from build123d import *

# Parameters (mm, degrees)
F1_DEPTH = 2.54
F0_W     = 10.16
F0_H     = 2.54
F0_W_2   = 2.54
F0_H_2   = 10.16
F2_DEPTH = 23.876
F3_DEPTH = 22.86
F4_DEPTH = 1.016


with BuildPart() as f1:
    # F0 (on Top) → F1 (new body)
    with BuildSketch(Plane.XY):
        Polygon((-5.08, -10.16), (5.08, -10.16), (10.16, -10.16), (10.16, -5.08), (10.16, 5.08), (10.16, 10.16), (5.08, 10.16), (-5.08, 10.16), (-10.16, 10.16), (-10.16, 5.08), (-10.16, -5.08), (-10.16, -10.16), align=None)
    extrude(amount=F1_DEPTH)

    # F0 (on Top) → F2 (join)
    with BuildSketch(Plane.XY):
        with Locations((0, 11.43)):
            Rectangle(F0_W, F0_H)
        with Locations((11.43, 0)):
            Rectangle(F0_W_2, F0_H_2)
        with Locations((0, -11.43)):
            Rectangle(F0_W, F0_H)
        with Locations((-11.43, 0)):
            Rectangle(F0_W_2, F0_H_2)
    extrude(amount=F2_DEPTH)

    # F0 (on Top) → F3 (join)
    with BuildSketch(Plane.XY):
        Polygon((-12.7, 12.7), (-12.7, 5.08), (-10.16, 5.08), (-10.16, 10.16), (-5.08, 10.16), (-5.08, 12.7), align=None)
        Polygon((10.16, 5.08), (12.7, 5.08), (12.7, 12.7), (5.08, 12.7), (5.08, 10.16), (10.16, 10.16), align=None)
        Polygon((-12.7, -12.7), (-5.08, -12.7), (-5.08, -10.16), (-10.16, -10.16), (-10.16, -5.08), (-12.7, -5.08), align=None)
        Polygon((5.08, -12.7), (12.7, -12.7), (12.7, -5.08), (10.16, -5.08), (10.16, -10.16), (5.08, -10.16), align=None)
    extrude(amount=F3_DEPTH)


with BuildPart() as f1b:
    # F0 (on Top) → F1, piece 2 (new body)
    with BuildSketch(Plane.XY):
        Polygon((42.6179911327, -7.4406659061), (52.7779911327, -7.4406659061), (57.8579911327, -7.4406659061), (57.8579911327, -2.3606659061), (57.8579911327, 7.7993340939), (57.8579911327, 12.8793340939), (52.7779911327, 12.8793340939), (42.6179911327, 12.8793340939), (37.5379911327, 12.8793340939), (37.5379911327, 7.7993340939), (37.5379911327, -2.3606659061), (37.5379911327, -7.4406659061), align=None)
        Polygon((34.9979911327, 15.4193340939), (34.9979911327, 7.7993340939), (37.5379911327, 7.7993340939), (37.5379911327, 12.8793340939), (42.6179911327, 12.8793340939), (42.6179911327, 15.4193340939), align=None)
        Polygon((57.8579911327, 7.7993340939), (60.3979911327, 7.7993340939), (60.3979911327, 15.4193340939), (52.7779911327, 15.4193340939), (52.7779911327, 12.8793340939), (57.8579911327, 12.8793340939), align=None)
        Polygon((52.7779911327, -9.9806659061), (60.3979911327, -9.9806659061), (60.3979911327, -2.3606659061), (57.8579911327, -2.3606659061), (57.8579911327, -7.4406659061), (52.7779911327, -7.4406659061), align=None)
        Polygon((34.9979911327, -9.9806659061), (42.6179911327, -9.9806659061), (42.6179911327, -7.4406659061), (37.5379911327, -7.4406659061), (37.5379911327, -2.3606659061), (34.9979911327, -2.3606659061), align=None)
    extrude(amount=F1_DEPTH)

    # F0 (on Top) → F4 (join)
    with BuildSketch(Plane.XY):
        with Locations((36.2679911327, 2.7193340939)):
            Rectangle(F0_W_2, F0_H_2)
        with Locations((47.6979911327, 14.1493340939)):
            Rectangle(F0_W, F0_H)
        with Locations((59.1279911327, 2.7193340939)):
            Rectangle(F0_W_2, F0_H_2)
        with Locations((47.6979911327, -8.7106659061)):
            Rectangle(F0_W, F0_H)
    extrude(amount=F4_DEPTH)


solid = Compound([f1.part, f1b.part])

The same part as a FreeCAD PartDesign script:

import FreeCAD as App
import Part
import Sketcher
from FreeCAD import Vector
Q = App.Units.Quantity

doc = App.newDocument("Part")
body = doc.addObject("PartDesign::Body", "Body")

sketch1 = doc.addObject("Sketcher::SketchObject", "Sketch")
body.addObject(sketch1)
sketch1.AttachmentSupport = (doc.XY_Plane, [""])
sketch1.MapMode = "FlatFace"
sketch1.addGeometry(Part.LineSegment(Vector(10.16, -10.16, 0), Vector(10.16, 10.16, 0)), False)
sketch1.addGeometry(Part.LineSegment(Vector(10.16, 10.16, 0), Vector(-10.16, 10.16, 0)), False)
sketch1.addGeometry(Part.LineSegment(Vector(-10.16, 10.16, 0), Vector(-10.16, -10.16, 0)), False)
sketch1.addGeometry(Part.LineSegment(Vector(-10.16, -10.16, 0), Vector(10.16, -10.16, 0)), False)
sketch1.addConstraint(Sketcher.Constraint("Coincident", 0, 2, 1, 1))
sketch1.addConstraint(Sketcher.Constraint("Coincident", 1, 2, 2, 1))
sketch1.addConstraint(Sketcher.Constraint("Coincident", 2, 2, 3, 1))
sketch1.addConstraint(Sketcher.Constraint("Coincident", 3, 2, 0, 1))
sketch1.addConstraint(Sketcher.Constraint("Vertical", 0))
sketch1.addConstraint(Sketcher.Constraint("Horizontal", 1))
sketch1.addConstraint(Sketcher.Constraint("Vertical", 2))
sketch1.addConstraint(Sketcher.Constraint("Horizontal", 3))
sketch1.addConstraint(Sketcher.Constraint("Symmetric", 0, 2, 2, 2, -1, 1))
sketch1.addConstraint(Sketcher.Constraint("Equal", 3, 0))
sketch1.addConstraint(Sketcher.Constraint("DistanceX", 1, 2, 1, 1, Q("0.8 in")))
pad1 = doc.addObject("PartDesign::Pad", "Pad")
body.addObject(pad1)
pad1.Profile = sketch1
pad1.Length = Q("0.1 in")

sketch2 = doc.addObject("Sketcher::SketchObject", "Sketch001")
body.addObject(sketch2)
sketch2.AttachmentSupport = (doc.XY_Plane, [""])
sketch2.MapMode = "FlatFace"
sketch2.addGeometry(Part.LineSegment(Vector(-5.08, 12.7, 0), Vector(-5.08, 10.16, 0)), False)
sketch2.addGeometry(Part.LineSegment(Vector(-5.08, 10.16, 0), Vector(5.08, 10.16, 0)), False)
sketch2.addGeometry(Part.LineSegment(Vector(5.08, 10.16, 0), Vector(5.08, 12.7, 0)), False)
sketch2.addGeometry(Part.LineSegment(Vector(5.08, 12.7, 0), Vector(-5.08, 12.7, 0)), False)
sketch2.addGeometry(Part.LineSegment(Vector(10.16, 5.08, 0), Vector(10.16, -5.08, 0)), False)
sketch2.addGeometry(Part.LineSegment(Vector(10.16, -5.08, 0), Vector(12.7, -5.08, 0)), False)
sketch2.addGeometry(Part.LineSegment(Vector(12.7, -5.08, 0), Vector(12.7, 5.08, 0)), False)
sketch2.addGeometry(Part.LineSegment(Vector(12.7, 5.08, 0), Vector(10.16, 5.08, 0)), False)
sketch2.addGeometry(Part.LineSegment(Vector(-5.08, -10.16, 0), Vector(-5.08, -12.7, 0)), False)
sketch2.addGeometry(Part.LineSegment(Vector(-5.08, -12.7, 0), Vector(5.08, -12.7, 0)), False)
sketch2.addGeometry(Part.LineSegment(Vector(5.08, -12.7, 0), Vector(5.08, -10.16, 0)), False)
sketch2.addGeometry(Part.LineSegment(Vector(5.08, -10.16, 0), Vector(-5.08, -10.16, 0)), False)
sketch2.addGeometry(Part.LineSegment(Vector(-12.7, 5.08, 0), Vector(-12.7, -5.08, 0)), False)
sketch2.addGeometry(Part.LineSegment(Vector(-12.7, -5.08, 0), Vector(-10.16, -5.08, 0)), False)
sketch2.addGeometry(Part.LineSegment(Vector(-10.16, -5.08, 0), Vector(-10.16, 5.08, 0)), False)
sketch2.addGeometry(Part.LineSegment(Vector(-10.16, 5.08, 0), Vector(-12.7, 5.08, 0)), False)
sketch2.addConstraint(Sketcher.Constraint("Coincident", 0, 2, 1, 1))
sketch2.addConstraint(Sketcher.Constraint("Coincident", 1, 2, 2, 1))
sketch2.addConstraint(Sketcher.Constraint("Coincident", 2, 2, 3, 1))
sketch2.addConstraint(Sketcher.Constraint("Coincident", 3, 2, 0, 1))
sketch2.addConstraint(Sketcher.Constraint("Coincident", 4, 2, 5, 1))
sketch2.addConstraint(Sketcher.Constraint("Coincident", 5, 2, 6, 1))
sketch2.addConstraint(Sketcher.Constraint("Coincident", 6, 2, 7, 1))
sketch2.addConstraint(Sketcher.Constraint("Coincident", 7, 2, 4, 1))
sketch2.addConstraint(Sketcher.Constraint("Coincident", 8, 2, 9, 1))
sketch2.addConstraint(Sketcher.Constraint("Coincident", 9, 2, 10, 1))
sketch2.addConstraint(Sketcher.Constraint("Coincident", 10, 2, 11, 1))
sketch2.addConstraint(Sketcher.Constraint("Coincident", 11, 2, 8, 1))
sketch2.addConstraint(Sketcher.Constraint("Coincident", 12, 2, 13, 1))
sketch2.addConstraint(Sketcher.Constraint("Coincident", 13, 2, 14, 1))
sketch2.addConstraint(Sketcher.Constraint("Coincident", 14, 2, 15, 1))
sketch2.addConstraint(Sketcher.Constraint("Coincident", 15, 2, 12, 1))
sketch2.addConstraint(Sketcher.Constraint("Vertical", 0))
sketch2.addConstraint(Sketcher.Constraint("Horizontal", 1))
sketch2.addConstraint(Sketcher.Constraint("Vertical", 2))
sketch2.addConstraint(Sketcher.Constraint("Horizontal", 3))
sketch2.addConstraint(Sketcher.Constraint("Vertical", 4))
sketch2.addConstraint(Sketcher.Constraint("Horizontal", 5))
sketch2.addConstraint(Sketcher.Constraint("Vertical", 6))
sketch2.addConstraint(Sketcher.Constraint("Horizontal", 7))
sketch2.addConstraint(Sketcher.Constraint("Vertical", 8))
sketch2.addConstraint(Sketcher.Constraint("Horizontal", 9))
sketch2.addConstraint(Sketcher.Constraint("Vertical", 10))
sketch2.addConstraint(Sketcher.Constraint("Horizontal", 11))
sketch2.addConstraint(Sketcher.Constraint("Vertical", 12))
sketch2.addConstraint(Sketcher.Constraint("Horizontal", 13))
sketch2.addConstraint(Sketcher.Constraint("Vertical", 14))
sketch2.addConstraint(Sketcher.Constraint("Horizontal", 15))
sketch2.addConstraint(Sketcher.Constraint("Symmetric", 2, 2, 8, 2, -1, 1))
sketch2.addConstraint(Sketcher.Constraint("Symmetric", 0, 2, 10, 2, -1, 1))
sketch2.addConstraint(Sketcher.Constraint("Symmetric", 6, 2, 12, 2, -1, 1))
sketch2.addConstraint(Sketcher.Constraint("Symmetric", 4, 2, 14, 2, -1, 1))
sketch2.addConstraint(Sketcher.Constraint("Horizontal", 5, 2, 12, 2))
sketch2.addConstraint(Sketcher.Constraint("Vertical", 3, 2, 8, 2))
sketch2.addConstraint(Sketcher.Constraint("Equal", 15, 0))
sketch2.addConstraint(Sketcher.Constraint("Equal", 11, 4))
sketch2.addConstraint(Sketcher.Constraint("DistanceX", 1, 1, 1, 2, Q("0.4 in")))
sketch2.addConstraint(Sketcher.Constraint("DistanceX", 5, 1, 5, 2, Q("0.1 in")))
sketch2.addConstraint(Sketcher.Constraint("DistanceY", -1, 1, 0, 2, Q("0.4 in")))
sketch2.addConstraint(Sketcher.Constraint("DistanceX", -1, 1, 4, 2, Q("0.4 in")))
pad2 = doc.addObject("PartDesign::Pad", "Pad001")
body.addObject(pad2)
pad2.Profile = sketch2
pad2.Length = Q("0.94 in")

sketch3 = doc.addObject("Sketcher::SketchObject", "Sketch002")
body.addObject(sketch3)
sketch3.AttachmentSupport = (doc.XY_Plane, [""])
sketch3.MapMode = "FlatFace"
sketch3.addGeometry(Part.LineSegment(Vector(-12.7, 12.7, 0), Vector(-12.7, 5.08, 0)), False)
sketch3.addGeometry(Part.LineSegment(Vector(-12.7, 5.08, 0), Vector(-10.16, 5.08, 0)), False)
sketch3.addGeometry(Part.LineSegment(Vector(-10.16, 5.08, 0), Vector(-10.16, 10.16, 0)), False)
sketch3.addGeometry(Part.LineSegment(Vector(-10.16, 10.16, 0), Vector(-5.08, 10.16, 0)), False)
sketch3.addGeometry(Part.LineSegment(Vector(-5.08, 10.16, 0), Vector(-5.08, 12.7, 0)), False)
sketch3.addGeometry(Part.LineSegment(Vector(-5.08, 12.7, 0), Vector(-12.7, 12.7, 0)), False)
sketch3.addGeometry(Part.LineSegment(Vector(10.16, 5.08, 0), Vector(12.7, 5.08, 0)), False)
sketch3.addGeometry(Part.LineSegment(Vector(12.7, 5.08, 0), Vector(12.7, 12.7, 0)), False)
sketch3.addGeometry(Part.LineSegment(Vector(12.7, 12.7, 0), Vector(5.08, 12.7, 0)), False)
sketch3.addGeometry(Part.LineSegment(Vector(5.08, 12.7, 0), Vector(5.08, 10.16, 0)), False)
sketch3.addGeometry(Part.LineSegment(Vector(5.08, 10.16, 0), Vector(10.16, 10.16, 0)), False)
sketch3.addGeometry(Part.LineSegment(Vector(10.16, 10.16, 0), Vector(10.16, 5.08, 0)), False)
sketch3.addGeometry(Part.LineSegment(Vector(-12.7, -12.7, 0), Vector(-5.08, -12.7, 0)), False)
sketch3.addGeometry(Part.LineSegment(Vector(-5.08, -12.7, 0), Vector(-5.08, -10.16, 0)), False)
sketch3.addGeometry(Part.LineSegment(Vector(-5.08, -10.16, 0), Vector(-10.16, -10.16, 0)), False)
sketch3.addGeometry(Part.LineSegment(Vector(-10.16, -10.16, 0), Vector(-10.16, -5.08, 0)), False)
sketch3.addGeometry(Part.LineSegment(Vector(-10.16, -5.08, 0), Vector(-12.7, -5.08, 0)), False)
sketch3.addGeometry(Part.LineSegment(Vector(-12.7, -5.08, 0), Vector(-12.7, -12.7, 0)), False)
sketch3.addGeometry(Part.LineSegment(Vector(5.08, -12.7, 0), Vector(12.7, -12.7, 0)), False)
sketch3.addGeometry(Part.LineSegment(Vector(12.7, -12.7, 0), Vector(12.7, -5.08, 0)), False)
sketch3.addGeometry(Part.LineSegment(Vector(12.7, -5.08, 0), Vector(10.16, -5.08, 0)), False)
sketch3.addGeometry(Part.LineSegment(Vector(10.16, -5.08, 0), Vector(10.16, -10.16, 0)), False)
sketch3.addGeometry(Part.LineSegment(Vector(10.16, -10.16, 0), Vector(5.08, -10.16, 0)), False)
sketch3.addGeometry(Part.LineSegment(Vector(5.08, -10.16, 0), Vector(5.08, -12.7, 0)), False)
sketch3.addConstraint(Sketcher.Constraint("Coincident", 0, 2, 1, 1))
sketch3.addConstraint(Sketcher.Constraint("Coincident", 1, 2, 2, 1))
sketch3.addConstraint(Sketcher.Constraint("Coincident", 2, 2, 3, 1))
sketch3.addConstraint(Sketcher.Constraint("Coincident", 3, 2, 4, 1))
sketch3.addConstraint(Sketcher.Constraint("Coincident", 4, 2, 5, 1))
sketch3.addConstraint(Sketcher.Constraint("Coincident", 5, 2, 0, 1))
sketch3.addConstraint(Sketcher.Constraint("Coincident", 6, 2, 7, 1))
sketch3.addConstraint(Sketcher.Constraint("Coincident", 7, 2, 8, 1))
sketch3.addConstraint(Sketcher.Constraint("Coincident", 8, 2, 9, 1))
sketch3.addConstraint(Sketcher.Constraint("Coincident", 9, 2, 10, 1))
sketch3.addConstraint(Sketcher.Constraint("Coincident", 10, 2, 11, 1))
sketch3.addConstraint(Sketcher.Constraint("Coincident", 11, 2, 6, 1))
sketch3.addConstraint(Sketcher.Constraint("Coincident", 12, 2, 13, 1))
sketch3.addConstraint(Sketcher.Constraint("Coincident", 13, 2, 14, 1))
sketch3.addConstraint(Sketcher.Constraint("Coincident", 14, 2, 15, 1))
sketch3.addConstraint(Sketcher.Constraint("Coincident", 15, 2, 16, 1))
sketch3.addConstraint(Sketcher.Constraint("Coincident", 16, 2, 17, 1))
sketch3.addConstraint(Sketcher.Constraint("Coincident", 17, 2, 12, 1))
sketch3.addConstraint(Sketcher.Constraint("Coincident", 18, 2, 19, 1))
sketch3.addConstraint(Sketcher.Constraint("Coincident", 19, 2, 20, 1))
sketch3.addConstraint(Sketcher.Constraint("Coincident", 20, 2, 21, 1))
sketch3.addConstraint(Sketcher.Constraint("Coincident", 21, 2, 22, 1))
sketch3.addConstraint(Sketcher.Constraint("Coincident", 22, 2, 23, 1))
sketch3.addConstraint(Sketcher.Constraint("Coincident", 23, 2, 18, 1))
sketch3.addConstraint(Sketcher.Constraint("Vertical", 0))
sketch3.addConstraint(Sketcher.Constraint("Horizontal", 1))
sketch3.addConstraint(Sketcher.Constraint("Vertical", 2))
sketch3.addConstraint(Sketcher.Constraint("Horizontal", 3))
sketch3.addConstraint(Sketcher.Constraint("Vertical", 4))
sketch3.addConstraint(Sketcher.Constraint("Horizontal", 5))
sketch3.addConstraint(Sketcher.Constraint("Horizontal", 6))
sketch3.addConstraint(Sketcher.Constraint("Vertical", 7))
sketch3.addConstraint(Sketcher.Constraint("Horizontal", 8))
sketch3.addConstraint(Sketcher.Constraint("Vertical", 9))
sketch3.addConstraint(Sketcher.Constraint("Horizontal", 10))
sketch3.addConstraint(Sketcher.Constraint("Vertical", 11))
sketch3.addConstraint(Sketcher.Constraint("Horizontal", 12))
sketch3.addConstraint(Sketcher.Constraint("Vertical", 13))
sketch3.addConstraint(Sketcher.Constraint("Horizontal", 14))
sketch3.addConstraint(Sketcher.Constraint("Vertical", 15))
sketch3.addConstraint(Sketcher.Constraint("Horizontal", 16))
sketch3.addConstraint(Sketcher.Constraint("Vertical", 17))
sketch3.addConstraint(Sketcher.Constraint("Horizontal", 18))
sketch3.addConstraint(Sketcher.Constraint("Vertical", 19))
sketch3.addConstraint(Sketcher.Constraint("Horizontal", 20))
sketch3.addConstraint(Sketcher.Constraint("Vertical", 21))
sketch3.addConstraint(Sketcher.Constraint("Horizontal", 22))
sketch3.addConstraint(Sketcher.Constraint("Vertical", 23))
sketch3.addConstraint(Sketcher.Constraint("Symmetric", 8, 2, 12, 2, -1, 1))
sketch3.addConstraint(Sketcher.Constraint("Symmetric", 10, 2, 14, 2, -1, 1))
sketch3.addConstraint(Sketcher.Constraint("Symmetric", 6, 2, 16, 2, -1, 1))
sketch3.addConstraint(Sketcher.Constraint("Symmetric", 5, 2, 18, 2, -1, 1))
sketch3.addConstraint(Sketcher.Constraint("Symmetric", 1, 2, 20, 2, -1, 1))
sketch3.addConstraint(Sketcher.Constraint("Symmetric", 3, 2, 22, 2, -1, 1))
sketch3.addConstraint(Sketcher.Constraint("Symmetric", 0, 2, 6, 2, -2))
sketch3.addConstraint(Sketcher.Constraint("Symmetric", 4, 2, 8, 2, -2))
sketch3.addConstraint(Sketcher.Constraint("Symmetric", 2, 2, 10, 2, -2))
sketch3.addConstraint(Sketcher.Constraint("Equal", 18, 0))
sketch3.addConstraint(Sketcher.Constraint("Equal", 22, 2))
sketch3.addConstraint(Sketcher.Constraint("DistanceX", 1, 1, 1, 2, Q("0.1 in")))
sketch3.addConstraint(Sketcher.Constraint("DistanceX", 3, 1, 3, 2, Q("0.2 in")))
sketch3.addConstraint(Sketcher.Constraint("DistanceX", 0, 2, 6, 2, Q("1 in")))
sketch3.addConstraint(Sketcher.Constraint("DistanceY", -1, 1, 0, 2, Q("0.2 in")))
pad3 = doc.addObject("PartDesign::Pad", "Pad002")
body.addObject(pad3)
pad3.Profile = sketch3
pad3.Length = Q("0.9 in")
body2 = doc.addObject("PartDesign::Body", "Body001")

sketch4 = doc.addObject("Sketcher::SketchObject", "Sketch003")
body2.addObject(sketch4)
sketch4.AttachmentSupport = (doc.getObject("XY_Plane001"), [""])
sketch4.MapMode = "FlatFace"
sketch4.addGeometry(Part.LineSegment(Vector(57.857991, -2.360666, 0), Vector(57.857991, 7.799334, 0)), False)
sketch4.addGeometry(Part.LineSegment(Vector(57.857991, 7.799334, 0), Vector(60.397991, 7.799334, 0)), False)
sketch4.addGeometry(Part.LineSegment(Vector(60.397991, 7.799334, 0), Vector(60.397991, 15.419334, 0)), False)
sketch4.addGeometry(Part.LineSegment(Vector(60.397991, 15.419334, 0), Vector(52.777991, 15.419334, 0)), False)
sketch4.addGeometry(Part.LineSegment(Vector(52.777991, 15.419334, 0), Vector(52.777991, 12.879334, 0)), False)
sketch4.addGeometry(Part.LineSegment(Vector(52.777991, 12.879334, 0), Vector(42.617991, 12.879334, 0)), False)
sketch4.addGeometry(Part.LineSegment(Vector(42.617991, 12.879334, 0), Vector(42.617991, 15.419334, 0)), False)
sketch4.addGeometry(Part.LineSegment(Vector(42.617991, 15.419334, 0), Vector(34.997991, 15.419334, 0)), False)
sketch4.addGeometry(Part.LineSegment(Vector(34.997991, 15.419334, 0), Vector(34.997991, 7.799334, 0)), False)
sketch4.addGeometry(Part.LineSegment(Vector(34.997991, 7.799334, 0), Vector(37.537991, 7.799334, 0)), False)
sketch4.addGeometry(Part.LineSegment(Vector(37.537991, 7.799334, 0), Vector(37.537991, -2.360666, 0)), False)
sketch4.addGeometry(Part.LineSegment(Vector(37.537991, -2.360666, 0), Vector(34.997991, -2.360666, 0)), False)
sketch4.addGeometry(Part.LineSegment(Vector(34.997991, -2.360666, 0), Vector(34.997991, -9.980666, 0)), False)
sketch4.addGeometry(Part.LineSegment(Vector(34.997991, -9.980666, 0), Vector(42.617991, -9.980666, 0)), False)
sketch4.addGeometry(Part.LineSegment(Vector(42.617991, -9.980666, 0), Vector(42.617991, -7.440666, 0)), False)
sketch4.addGeometry(Part.LineSegment(Vector(42.617991, -7.440666, 0), Vector(52.777991, -7.440666, 0)), False)
sketch4.addGeometry(Part.LineSegment(Vector(52.777991, -7.440666, 0), Vector(52.777991, -9.980666, 0)), False)
sketch4.addGeometry(Part.LineSegment(Vector(52.777991, -9.980666, 0), Vector(60.397991, -9.980666, 0)), False)
sketch4.addGeometry(Part.LineSegment(Vector(60.397991, -9.980666, 0), Vector(60.397991, -2.360666, 0)), False)
sketch4.addGeometry(Part.LineSegment(Vector(60.397991, -2.360666, 0), Vector(57.857991, -2.360666, 0)), False)
sketch4.addConstraint(Sketcher.Constraint("Coincident", 0, 2, 1, 1))
sketch4.addConstraint(Sketcher.Constraint("Coincident", 1, 2, 2, 1))
sketch4.addConstraint(Sketcher.Constraint("Coincident", 2, 2, 3, 1))
sketch4.addConstraint(Sketcher.Constraint("Coincident", 3, 2, 4, 1))
sketch4.addConstraint(Sketcher.Constraint("Coincident", 4, 2, 5, 1))
sketch4.addConstraint(Sketcher.Constraint("Coincident", 5, 2, 6, 1))
sketch4.addConstraint(Sketcher.Constraint("Coincident", 6, 2, 7, 1))
sketch4.addConstraint(Sketcher.Constraint("Coincident", 7, 2, 8, 1))
sketch4.addConstraint(Sketcher.Constraint("Coincident", 8, 2, 9, 1))
sketch4.addConstraint(Sketcher.Constraint("Coincident", 9, 2, 10, 1))
sketch4.addConstraint(Sketcher.Constraint("Coincident", 10, 2, 11, 1))
sketch4.addConstraint(Sketcher.Constraint("Coincident", 11, 2, 12, 1))
sketch4.addConstraint(Sketcher.Constraint("Coincident", 12, 2, 13, 1))
sketch4.addConstraint(Sketcher.Constraint("Coincident", 13, 2, 14, 1))
sketch4.addConstraint(Sketcher.Constraint("Coincident", 14, 2, 15, 1))
sketch4.addConstraint(Sketcher.Constraint("Coincident", 15, 2, 16, 1))
sketch4.addConstraint(Sketcher.Constraint("Coincident", 16, 2, 17, 1))
sketch4.addConstraint(Sketcher.Constraint("Coincident", 17, 2, 18, 1))
sketch4.addConstraint(Sketcher.Constraint("Coincident", 18, 2, 19, 1))
sketch4.addConstraint(Sketcher.Constraint("Coincident", 19, 2, 0, 1))
sketch4.addConstraint(Sketcher.Constraint("Vertical", 0))
sketch4.addConstraint(Sketcher.Constraint("Horizontal", 1))
sketch4.addConstraint(Sketcher.Constraint("Vertical", 2))
sketch4.addConstraint(Sketcher.Constraint("Horizontal", 3))
sketch4.addConstraint(Sketcher.Constraint("Vertical", 4))
sketch4.addConstraint(Sketcher.Constraint("Horizontal", 5))
sketch4.addConstraint(Sketcher.Constraint("Vertical", 6))
sketch4.addConstraint(Sketcher.Constraint("Horizontal", 7))
sketch4.addConstraint(Sketcher.Constraint("Vertical", 8))
sketch4.addConstraint(Sketcher.Constraint("Horizontal", 9))
sketch4.addConstraint(Sketcher.Constraint("Vertical", 10))
sketch4.addConstraint(Sketcher.Constraint("Horizontal", 11))
sketch4.addConstraint(Sketcher.Constraint("Vertical", 12))
sketch4.addConstraint(Sketcher.Constraint("Horizontal", 13))
sketch4.addConstraint(Sketcher.Constraint("Vertical", 14))
sketch4.addConstraint(Sketcher.Constraint("Horizontal", 15))
sketch4.addConstraint(Sketcher.Constraint("Vertical", 16))
sketch4.addConstraint(Sketcher.Constraint("Horizontal", 17))
sketch4.addConstraint(Sketcher.Constraint("Vertical", 18))
sketch4.addConstraint(Sketcher.Constraint("Horizontal", 19))
sketch4.addConstraint(Sketcher.Constraint("Horizontal", 3, 2, 6, 2))
sketch4.addConstraint(Sketcher.Constraint("Horizontal", 1, 2, 8, 2))
sketch4.addConstraint(Sketcher.Constraint("Horizontal", 13, 2, 16, 2))
sketch4.addConstraint(Sketcher.Constraint("Horizontal", 11, 2, 18, 2))
sketch4.addConstraint(Sketcher.Constraint("Vertical", 8, 2, 11, 2))
sketch4.addConstraint(Sketcher.Constraint("Vertical", 6, 2, 13, 2))
sketch4.addConstraint(Sketcher.Constraint("Vertical", 4, 2, 15, 2))
sketch4.addConstraint(Sketcher.Constraint("Vertical", 2, 2, 17, 2))
sketch4.addConstraint(Sketcher.Constraint("Equal", 3, 7))
sketch4.addConstraint(Sketcher.Constraint("Equal", 1, 9))
sketch4.addConstraint(Sketcher.Constraint("Equal", 15, 0))
sketch4.addConstraint(Sketcher.Constraint("Equal", 17, 2))
sketch4.addConstraint(Sketcher.Constraint("Equal", 19, 4))
sketch4.addConstraint(Sketcher.Constraint("Equal", 8, 12))
sketch4.addConstraint(Sketcher.Constraint("Equal", 6, 14))
sketch4.addConstraint(Sketcher.Constraint("DistanceX", 1, 1, 1, 2, Q("0.1 in")))
sketch4.addConstraint(Sketcher.Constraint("DistanceX", 3, 2, 3, 1, Q("0.3 in")))
sketch4.addConstraint(Sketcher.Constraint("DistanceX", 5, 2, 5, 1, Q("0.4 in")))
sketch4.addConstraint(Sketcher.Constraint("DistanceX", -1, 1, 0, 2, Q("57.857991 mm")))
sketch4.addConstraint(Sketcher.Constraint("DistanceY", -1, 1, 0, 2, Q("7.799334 mm")))
pad4 = doc.addObject("PartDesign::Pad", "Pad003")
body2.addObject(pad4)
pad4.Profile = sketch4
pad4.Length = Q("0.1 in")

sketch5 = doc.addObject("Sketcher::SketchObject", "Sketch004")
body2.addObject(sketch5)
sketch5.AttachmentSupport = (doc.getObject("XY_Plane001"), [""])
sketch5.MapMode = "FlatFace"
sketch5.addGeometry(Part.LineSegment(Vector(34.997991, 7.799334, 0), Vector(34.997991, -2.360666, 0)), False)
sketch5.addGeometry(Part.LineSegment(Vector(34.997991, -2.360666, 0), Vector(37.537991, -2.360666, 0)), False)
sketch5.addGeometry(Part.LineSegment(Vector(37.537991, -2.360666, 0), Vector(37.537991, 7.799334, 0)), False)
sketch5.addGeometry(Part.LineSegment(Vector(37.537991, 7.799334, 0), Vector(34.997991, 7.799334, 0)), False)
sketch5.addGeometry(Part.LineSegment(Vector(42.617991, 15.419334, 0), Vector(42.617991, 12.879334, 0)), False)
sketch5.addGeometry(Part.LineSegment(Vector(42.617991, 12.879334, 0), Vector(52.777991, 12.879334, 0)), False)
sketch5.addGeometry(Part.LineSegment(Vector(52.777991, 12.879334, 0), Vector(52.777991, 15.419334, 0)), False)
sketch5.addGeometry(Part.LineSegment(Vector(52.777991, 15.419334, 0), Vector(42.617991, 15.419334, 0)), False)
sketch5.addGeometry(Part.LineSegment(Vector(57.857991, 7.799334, 0), Vector(57.857991, -2.360666, 0)), False)
sketch5.addGeometry(Part.LineSegment(Vector(57.857991, -2.360666, 0), Vector(60.397991, -2.360666, 0)), False)
sketch5.addGeometry(Part.LineSegment(Vector(60.397991, -2.360666, 0), Vector(60.397991, 7.799334, 0)), False)
sketch5.addGeometry(Part.LineSegment(Vector(60.397991, 7.799334, 0), Vector(57.857991, 7.799334, 0)), False)
sketch5.addGeometry(Part.LineSegment(Vector(42.617991, -7.440666, 0), Vector(42.617991, -9.980666, 0)), False)
sketch5.addGeometry(Part.LineSegment(Vector(42.617991, -9.980666, 0), Vector(52.777991, -9.980666, 0)), False)
sketch5.addGeometry(Part.LineSegment(Vector(52.777991, -9.980666, 0), Vector(52.777991, -7.440666, 0)), False)
sketch5.addGeometry(Part.LineSegment(Vector(52.777991, -7.440666, 0), Vector(42.617991, -7.440666, 0)), False)
sketch5.addConstraint(Sketcher.Constraint("Coincident", 0, 2, 1, 1))
sketch5.addConstraint(Sketcher.Constraint("Coincident", 1, 2, 2, 1))
sketch5.addConstraint(Sketcher.Constraint("Coincident", 2, 2, 3, 1))
sketch5.addConstraint(Sketcher.Constraint("Coincident", 3, 2, 0, 1))
sketch5.addConstraint(Sketcher.Constraint("Coincident", 4, 2, 5, 1))
sketch5.addConstraint(Sketcher.Constraint("Coincident", 5, 2, 6, 1))
sketch5.addConstraint(Sketcher.Constraint("Coincident", 6, 2, 7, 1))
sketch5.addConstraint(Sketcher.Constraint("Coincident", 7, 2, 4, 1))
sketch5.addConstraint(Sketcher.Constraint("Coincident", 8, 2, 9, 1))
sketch5.addConstraint(Sketcher.Constraint("Coincident", 9, 2, 10, 1))
sketch5.addConstraint(Sketcher.Constraint("Coincident", 10, 2, 11, 1))
sketch5.addConstraint(Sketcher.Constraint("Coincident", 11, 2, 8, 1))
sketch5.addConstraint(Sketcher.Constraint("Coincident", 12, 2, 13, 1))
sketch5.addConstraint(Sketcher.Constraint("Coincident", 13, 2, 14, 1))
sketch5.addConstraint(Sketcher.Constraint("Coincident", 14, 2, 15, 1))
sketch5.addConstraint(Sketcher.Constraint("Coincident", 15, 2, 12, 1))
sketch5.addConstraint(Sketcher.Constraint("Vertical", 0))
sketch5.addConstraint(Sketcher.Constraint("Horizontal", 1))
sketch5.addConstraint(Sketcher.Constraint("Vertical", 2))
sketch5.addConstraint(Sketcher.Constraint("Horizontal", 3))
sketch5.addConstraint(Sketcher.Constraint("Vertical", 4))
sketch5.addConstraint(Sketcher.Constraint("Horizontal", 5))
sketch5.addConstraint(Sketcher.Constraint("Vertical", 6))
sketch5.addConstraint(Sketcher.Constraint("Horizontal", 7))
sketch5.addConstraint(Sketcher.Constraint("Vertical", 8))
sketch5.addConstraint(Sketcher.Constraint("Horizontal", 9))
sketch5.addConstraint(Sketcher.Constraint("Vertical", 10))
sketch5.addConstraint(Sketcher.Constraint("Horizontal", 11))
sketch5.addConstraint(Sketcher.Constraint("Vertical", 12))
sketch5.addConstraint(Sketcher.Constraint("Horizontal", 13))
sketch5.addConstraint(Sketcher.Constraint("Vertical", 14))
sketch5.addConstraint(Sketcher.Constraint("Horizontal", 15))
sketch5.addConstraint(Sketcher.Constraint("Horizontal", 1, 2, 8, 2))
sketch5.addConstraint(Sketcher.Constraint("Horizontal", 3, 2, 10, 2))
sketch5.addConstraint(Sketcher.Constraint("Vertical", 7, 2, 12, 2))
sketch5.addConstraint(Sketcher.Constraint("Vertical", 6, 2, 13, 2))
sketch5.addConstraint(Sketcher.Constraint("Equal", 3, 9))
sketch5.addConstraint(Sketcher.Constraint("Equal", 15, 0))
sketch5.addConstraint(Sketcher.Constraint("Equal", 11, 4))
sketch5.addConstraint(Sketcher.Constraint("Equal", 6, 12))
sketch5.addConstraint(Sketcher.Constraint("DistanceX", 1, 1, 1, 2, Q("0.1 in")))
sketch5.addConstraint(Sketcher.Constraint("DistanceX", 5, 1, 5, 2, Q("0.4 in")))
sketch5.addConstraint(Sketcher.Constraint("DistanceX", 2, 2, 4, 2, Q("0.2 in")))
sketch5.addConstraint(Sketcher.Constraint("DistanceY", 2, 2, 4, 2, Q("0.2 in")))
sketch5.addConstraint(Sketcher.Constraint("DistanceX", 5, 2, 8, 2, Q("0.2 in")))
sketch5.addConstraint(Sketcher.Constraint("DistanceY", 12, 2, 1, 2, Q("0.3 in")))
sketch5.addConstraint(Sketcher.Constraint("DistanceX", -1, 1, 0, 2, Q("34.997991 mm")))
sketch5.addConstraint(Sketcher.Constraint("DistanceY", 0, 2, -1, 1, Q("2.360666 mm")))
pad5 = doc.addObject("PartDesign::Pad", "Pad004")
body2.addObject(pad5)
pad5.Profile = sketch5
pad5.Length = Q("0.04 in")

doc.recompute()
